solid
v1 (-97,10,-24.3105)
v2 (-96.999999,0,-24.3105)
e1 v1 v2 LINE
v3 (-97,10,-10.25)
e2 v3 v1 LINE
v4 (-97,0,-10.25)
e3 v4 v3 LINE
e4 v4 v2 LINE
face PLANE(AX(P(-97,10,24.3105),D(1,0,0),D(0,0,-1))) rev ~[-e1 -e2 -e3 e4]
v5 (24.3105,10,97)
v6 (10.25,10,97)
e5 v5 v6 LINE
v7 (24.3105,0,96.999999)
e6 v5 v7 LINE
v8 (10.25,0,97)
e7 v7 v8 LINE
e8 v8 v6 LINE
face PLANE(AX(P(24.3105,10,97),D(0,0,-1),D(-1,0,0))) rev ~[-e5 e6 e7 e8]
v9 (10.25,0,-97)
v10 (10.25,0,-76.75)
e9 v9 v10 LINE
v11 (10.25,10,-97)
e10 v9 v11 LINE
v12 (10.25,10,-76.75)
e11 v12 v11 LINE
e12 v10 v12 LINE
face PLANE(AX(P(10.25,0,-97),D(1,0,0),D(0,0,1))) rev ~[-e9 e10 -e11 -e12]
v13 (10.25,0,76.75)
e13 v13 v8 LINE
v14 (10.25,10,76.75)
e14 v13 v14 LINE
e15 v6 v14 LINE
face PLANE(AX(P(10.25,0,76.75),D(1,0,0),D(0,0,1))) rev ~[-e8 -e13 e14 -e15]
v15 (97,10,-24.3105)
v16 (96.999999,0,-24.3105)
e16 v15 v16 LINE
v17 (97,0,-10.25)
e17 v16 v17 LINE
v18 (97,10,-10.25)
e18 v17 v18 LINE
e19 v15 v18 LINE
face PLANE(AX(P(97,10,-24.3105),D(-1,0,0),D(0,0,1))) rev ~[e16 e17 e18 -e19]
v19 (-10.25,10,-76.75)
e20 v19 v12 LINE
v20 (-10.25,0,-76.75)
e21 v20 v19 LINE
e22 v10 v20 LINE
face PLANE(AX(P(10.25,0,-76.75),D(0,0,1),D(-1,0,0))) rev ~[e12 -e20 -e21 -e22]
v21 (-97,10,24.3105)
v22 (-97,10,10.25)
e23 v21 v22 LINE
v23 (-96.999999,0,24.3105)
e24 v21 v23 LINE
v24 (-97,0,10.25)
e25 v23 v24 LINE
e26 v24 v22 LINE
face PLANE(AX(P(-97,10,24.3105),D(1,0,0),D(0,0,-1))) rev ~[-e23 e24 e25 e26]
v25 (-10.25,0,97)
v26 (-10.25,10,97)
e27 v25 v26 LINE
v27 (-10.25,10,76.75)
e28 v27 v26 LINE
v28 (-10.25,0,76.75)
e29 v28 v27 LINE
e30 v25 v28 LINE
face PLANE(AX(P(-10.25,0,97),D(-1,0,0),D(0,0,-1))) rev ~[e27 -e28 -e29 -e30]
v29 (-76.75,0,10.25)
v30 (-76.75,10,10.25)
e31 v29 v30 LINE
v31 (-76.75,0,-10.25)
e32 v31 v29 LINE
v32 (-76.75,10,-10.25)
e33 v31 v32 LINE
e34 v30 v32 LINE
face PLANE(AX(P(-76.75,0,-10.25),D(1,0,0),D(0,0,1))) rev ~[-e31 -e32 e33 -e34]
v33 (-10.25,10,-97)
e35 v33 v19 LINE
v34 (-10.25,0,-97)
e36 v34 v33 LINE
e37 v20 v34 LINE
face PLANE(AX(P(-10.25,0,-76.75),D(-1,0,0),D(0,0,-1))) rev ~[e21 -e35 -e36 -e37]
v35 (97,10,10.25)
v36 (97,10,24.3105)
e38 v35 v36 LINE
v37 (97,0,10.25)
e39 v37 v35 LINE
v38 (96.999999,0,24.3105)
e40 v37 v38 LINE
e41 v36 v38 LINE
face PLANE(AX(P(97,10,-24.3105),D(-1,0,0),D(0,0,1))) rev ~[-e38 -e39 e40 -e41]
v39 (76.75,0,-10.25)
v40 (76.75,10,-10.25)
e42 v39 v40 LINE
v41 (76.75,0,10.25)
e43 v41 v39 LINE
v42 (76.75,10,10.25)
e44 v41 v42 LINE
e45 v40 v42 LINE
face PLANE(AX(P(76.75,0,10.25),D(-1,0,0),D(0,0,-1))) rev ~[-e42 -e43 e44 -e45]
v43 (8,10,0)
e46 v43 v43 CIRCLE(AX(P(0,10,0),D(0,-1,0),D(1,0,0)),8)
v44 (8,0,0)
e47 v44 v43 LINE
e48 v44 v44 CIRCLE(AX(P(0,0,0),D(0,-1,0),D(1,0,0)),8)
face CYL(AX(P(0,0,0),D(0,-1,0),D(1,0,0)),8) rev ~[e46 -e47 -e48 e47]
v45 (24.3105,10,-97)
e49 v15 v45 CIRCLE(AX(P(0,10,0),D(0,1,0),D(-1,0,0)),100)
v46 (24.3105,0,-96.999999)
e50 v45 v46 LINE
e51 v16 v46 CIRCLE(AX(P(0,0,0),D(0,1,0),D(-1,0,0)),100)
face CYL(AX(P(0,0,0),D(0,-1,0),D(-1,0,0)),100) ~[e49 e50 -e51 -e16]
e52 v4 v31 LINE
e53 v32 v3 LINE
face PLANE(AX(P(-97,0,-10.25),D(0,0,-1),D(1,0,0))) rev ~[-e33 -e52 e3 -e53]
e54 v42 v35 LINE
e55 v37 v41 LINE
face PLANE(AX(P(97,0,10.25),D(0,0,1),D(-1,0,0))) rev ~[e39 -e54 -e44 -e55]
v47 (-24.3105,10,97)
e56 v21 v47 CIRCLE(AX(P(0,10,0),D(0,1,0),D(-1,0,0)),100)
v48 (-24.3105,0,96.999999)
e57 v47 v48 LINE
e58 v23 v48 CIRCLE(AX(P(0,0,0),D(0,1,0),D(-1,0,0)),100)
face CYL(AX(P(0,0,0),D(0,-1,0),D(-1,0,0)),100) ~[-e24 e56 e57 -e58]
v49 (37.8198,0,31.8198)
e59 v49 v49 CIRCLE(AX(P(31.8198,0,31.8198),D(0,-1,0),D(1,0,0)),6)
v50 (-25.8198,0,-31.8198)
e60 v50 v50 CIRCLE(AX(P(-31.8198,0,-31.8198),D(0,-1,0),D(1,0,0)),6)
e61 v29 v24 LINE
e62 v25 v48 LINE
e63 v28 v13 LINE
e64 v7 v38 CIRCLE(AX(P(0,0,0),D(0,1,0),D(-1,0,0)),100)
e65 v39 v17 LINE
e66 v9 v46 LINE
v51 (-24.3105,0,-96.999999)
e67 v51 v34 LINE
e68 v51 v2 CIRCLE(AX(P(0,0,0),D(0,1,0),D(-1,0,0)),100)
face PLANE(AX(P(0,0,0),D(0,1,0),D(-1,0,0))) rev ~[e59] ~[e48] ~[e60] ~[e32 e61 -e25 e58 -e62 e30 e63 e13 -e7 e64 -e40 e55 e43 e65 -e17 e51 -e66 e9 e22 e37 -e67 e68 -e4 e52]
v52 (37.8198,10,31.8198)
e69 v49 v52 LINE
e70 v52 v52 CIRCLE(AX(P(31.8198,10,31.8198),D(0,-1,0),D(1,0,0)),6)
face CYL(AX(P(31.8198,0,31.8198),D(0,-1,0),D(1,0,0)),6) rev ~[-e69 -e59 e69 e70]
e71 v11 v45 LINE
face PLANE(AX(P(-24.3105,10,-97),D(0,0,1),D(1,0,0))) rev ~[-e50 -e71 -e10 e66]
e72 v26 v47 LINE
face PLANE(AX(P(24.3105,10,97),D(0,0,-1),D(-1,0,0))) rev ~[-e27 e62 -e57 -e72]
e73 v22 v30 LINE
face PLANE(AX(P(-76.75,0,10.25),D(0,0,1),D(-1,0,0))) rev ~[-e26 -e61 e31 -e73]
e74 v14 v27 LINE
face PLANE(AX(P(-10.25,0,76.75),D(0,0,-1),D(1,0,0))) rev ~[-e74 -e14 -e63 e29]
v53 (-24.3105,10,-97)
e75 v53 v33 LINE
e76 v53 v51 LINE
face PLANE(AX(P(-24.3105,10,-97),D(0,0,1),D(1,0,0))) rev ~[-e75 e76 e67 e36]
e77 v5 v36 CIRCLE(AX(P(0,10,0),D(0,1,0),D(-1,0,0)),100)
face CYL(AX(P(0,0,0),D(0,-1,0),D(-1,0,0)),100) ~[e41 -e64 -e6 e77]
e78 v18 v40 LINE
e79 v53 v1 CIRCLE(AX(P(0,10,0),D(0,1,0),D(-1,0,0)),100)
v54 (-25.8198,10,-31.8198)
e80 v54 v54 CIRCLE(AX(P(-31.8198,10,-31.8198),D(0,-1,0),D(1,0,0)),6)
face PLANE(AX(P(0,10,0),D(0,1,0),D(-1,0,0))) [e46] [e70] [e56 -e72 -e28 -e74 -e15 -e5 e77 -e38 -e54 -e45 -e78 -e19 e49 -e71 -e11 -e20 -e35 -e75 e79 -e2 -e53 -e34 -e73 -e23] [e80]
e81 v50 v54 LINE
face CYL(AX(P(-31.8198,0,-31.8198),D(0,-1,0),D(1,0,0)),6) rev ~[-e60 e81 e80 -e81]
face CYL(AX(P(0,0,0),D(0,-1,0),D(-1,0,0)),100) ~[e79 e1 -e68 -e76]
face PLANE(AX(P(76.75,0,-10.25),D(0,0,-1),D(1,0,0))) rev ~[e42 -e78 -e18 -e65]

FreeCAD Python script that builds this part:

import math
import FreeCAD as App
import Part
import Sketcher
from FreeCAD import Vector


def edges_at(feature, points):
    """Names of the edges that pass closest to the given points."""
    edges = feature.Shape.Edges
    near = lambda p: min(range(len(edges)), key=lambda i: edges[i].distToShape(Part.Vertex(*p))[0])
    return sorted({f"Edge{near(p) + 1}" for p in points})

doc = App.newDocument("Part")
body = doc.addObject("PartDesign::Body", "Body")

sketch1 = body.newObject("Sketcher::SketchObject", "Sketch")
sketch1.AttachmentSupport = (doc.getObject("XZ_Plane"), [""])
sketch1.MapMode = "FlatFace"
sketch1.addGeometry(Part.Circle(Vector(0, 0, 0), Vector(0, 0, 1), 100), False)
sketch1.addConstraint([
    Sketcher.Constraint("Coincident", 0, 3, -1, 1),
    Sketcher.Constraint("Diameter", 0, 200.0),
])
pad1 = body.newObject("PartDesign::Pad", "Pad")
pad1.Profile = sketch1
pad1.Length = 10
pad1.Reversed = True

sketch2 = body.newObject("Sketcher::SketchObject", "Sketch001")
sketch2.AttachmentSupport = (doc.getObject("XZ_Plane"), [""])
sketch2.MapMode = "FlatFace"
sketch2.AttachmentOffset = App.Placement(Vector(0, 0, -10), App.Rotation())
sketch2.addGeometry(Part.Circle(Vector(-87, 0, 0), Vector(0, 0, 1), 3.1), False)
sketch2.addConstraint([
    Sketcher.Constraint("PointOnObject", 0, 3, -1),
    Sketcher.Constraint("Diameter", 0, 6.2),
    Sketcher.Constraint("DistanceX", 0, 3, -1, 1, 87.0),
])
pocket1 = body.newObject("PartDesign::Pocket", "Pocket")
pocket1.Profile = sketch2
pocket1.Type = "ThroughAll"
pocket1.Reversed = True
doc.recompute()

chamfer = body.newObject("PartDesign::Chamfer", "Chamfer")
chamfer.Base = (pocket1, edges_at(pocket1, [(-90.1, 0, 0)]))
chamfer.Size = 3

sketch3 = body.newObject("Sketcher::SketchObject", "Sketch002")
sketch3.AttachmentSupport = (doc.getObject("XZ_Plane"), [""])
sketch3.MapMode = "FlatFace"
sketch3.AttachmentOffset = App.Placement(Vector(0, 0, -10), App.Rotation())
sketch3.addGeometry([
    Part.LineSegment(Vector(-97, 24.3105, 0), Vector(-97, -24.3105, 0)),
    Part.ArcOfCircle(Part.Circle(Vector(0, 0, 0), Vector(0, 0, 1), 100), math.radians(165.930128), math.radians(194.069872)),
], False)
sketch3.addConstraint([
    Sketcher.Constraint("Coincident", 0, 1, 1, 1),
    Sketcher.Constraint("Coincident", 1, 2, 0, 2),
    Sketcher.Constraint("Vertical", 0),
    Sketcher.Constraint("Coincident", 1, 3, -1, 1),
    Sketcher.Constraint("Radius", 1, 100.0),
    Sketcher.Constraint("DistanceX", 0, 1, -1, 1, 97.0),
])
pocket2 = body.newObject("PartDesign::Pocket", "Pocket001")
pocket2.Profile = sketch3
pocket2.Type = "ThroughAll"
pocket2.Reversed = True
doc.recompute()

polarpattern = body.newObject("PartDesign::PolarPattern", "PolarPattern")
polarpattern.Originals = [pocket1, chamfer]
polarpattern.Axis = (doc.getObject("Y_Axis"), [""])
polarpattern.Angle = 360
polarpattern.Occurrences = 4
body.Tip = polarpattern
doc.recompute()

polarpattern2 = body.newObject("PartDesign::PolarPattern", "PolarPattern001")
polarpattern2.Originals = [pocket2]
polarpattern2.Axis = (doc.getObject("Y_Axis"), [""])
polarpattern2.Angle = 360
polarpattern2.Occurrences = 4
body.Tip = polarpattern2

sketch4 = body.newObject("Sketcher::SketchObject", "Sketch003")
sketch4.AttachmentSupport = (doc.getObject("XZ_Plane"), [""])
sketch4.MapMode = "FlatFace"
sketch4.addGeometry(Part.Circle(Vector(0, 0, 0), Vector(0, 0, 1), 8), False)
sketch4.addConstraint([
    Sketcher.Constraint("Coincident", 0, 3, -1, 1),
    Sketcher.Constraint("Diameter", 0, 16.0),
])
pocket3 = body.newObject("PartDesign::Pocket", "Pocket002")
pocket3.Profile = sketch4
pocket3.Type = "ThroughAll"

sketch5 = body.newObject("Sketcher::SketchObject", "Sketch004")
sketch5.AttachmentSupport = (doc.getObject("XZ_Plane"), [""])
sketch5.MapMode = "FlatFace"
sketch5.addGeometry([
    Part.LineSegment(Vector(10.25, 97, 0), Vector(-10.25, 97, 0)),
    Part.LineSegment(Vector(-10.25, 97, 0), Vector(-10.25, 76.75, 0)),
    Part.LineSegment(Vector(-10.25, 76.75, 0), Vector(10.25, 76.75, 0)),
    Part.LineSegment(Vector(10.25, 76.75, 0), Vector(10.25, 97, 0)),
], False)
sketch5.addConstraint([
    Sketcher.Constraint("Coincident", 0, 2, 1, 1),
    Sketcher.Constraint("Coincident", 1, 2, 2, 1),
    Sketcher.Constraint("Coincident", 2, 2, 3, 1),
    Sketcher.Constraint("Coincident", 3, 2, 0, 1),
    Sketcher.Constraint("Horizontal", 0),
    Sketcher.Constraint("Vertical", 1),
    Sketcher.Constraint("Horizontal", 2),
    Sketcher.Constraint("Vertical", 3),
    Sketcher.Constraint("DistanceX", 0, 2, 0, 1, 20.5),
    Sketcher.Constraint("DistanceY", -1, 1, 0, 2, 97.0),
    Sketcher.Constraint("DistanceY", 1, 2, 1, 1, 20.25),
    Sketcher.Constraint("DistanceX", 0, 2, -1, 1, 10.25),
])
pocket4 = body.newObject("PartDesign::Pocket", "Pocket003")
pocket4.Profile = sketch5
pocket4.Type = "ThroughAll"
doc.recompute()

polarpattern3 = body.newObject("PartDesign::PolarPattern", "PolarPattern002")
polarpattern3.Originals = [pocket4]
polarpattern3.Axis = (doc.getObject("Y_Axis"), [""])
polarpattern3.Angle = 360
polarpattern3.Occurrences = 4
body.Tip = polarpattern3

sketch6 = body.newObject("Sketcher::SketchObject", "Sketch005")
sketch6.AttachmentSupport = (doc.getObject("XZ_Plane"), [""])
sketch6.MapMode = "FlatFace"
sketch6.addGeometry([
    Part.Circle(Vector(31.8198, 31.8198, 0), Vector(0, 0, 1), 6),
    Part.Circle(Vector(-31.8198, -31.8198, 0), Vector(0, 0, 1), 6),
], False)
sketch6.addConstraint([
    Sketcher.Constraint("Equal", 0, 1),
    Sketcher.Constraint("Symmetric", 0, 3, 1, 3, -1, 1),
    Sketcher.Constraint("Diameter", 0, 12.0),
    Sketcher.Constraint("DistanceX", -1, 1, 0, 3, 31.8198),
    Sketcher.Constraint("DistanceY", -1, 1, 0, 3, 31.8198),
])
pocket5 = body.newObject("PartDesign::Pocket", "Pocket004")
pocket5.Profile = sketch6
pocket5.Type = "ThroughAll"

doc.recompute()
